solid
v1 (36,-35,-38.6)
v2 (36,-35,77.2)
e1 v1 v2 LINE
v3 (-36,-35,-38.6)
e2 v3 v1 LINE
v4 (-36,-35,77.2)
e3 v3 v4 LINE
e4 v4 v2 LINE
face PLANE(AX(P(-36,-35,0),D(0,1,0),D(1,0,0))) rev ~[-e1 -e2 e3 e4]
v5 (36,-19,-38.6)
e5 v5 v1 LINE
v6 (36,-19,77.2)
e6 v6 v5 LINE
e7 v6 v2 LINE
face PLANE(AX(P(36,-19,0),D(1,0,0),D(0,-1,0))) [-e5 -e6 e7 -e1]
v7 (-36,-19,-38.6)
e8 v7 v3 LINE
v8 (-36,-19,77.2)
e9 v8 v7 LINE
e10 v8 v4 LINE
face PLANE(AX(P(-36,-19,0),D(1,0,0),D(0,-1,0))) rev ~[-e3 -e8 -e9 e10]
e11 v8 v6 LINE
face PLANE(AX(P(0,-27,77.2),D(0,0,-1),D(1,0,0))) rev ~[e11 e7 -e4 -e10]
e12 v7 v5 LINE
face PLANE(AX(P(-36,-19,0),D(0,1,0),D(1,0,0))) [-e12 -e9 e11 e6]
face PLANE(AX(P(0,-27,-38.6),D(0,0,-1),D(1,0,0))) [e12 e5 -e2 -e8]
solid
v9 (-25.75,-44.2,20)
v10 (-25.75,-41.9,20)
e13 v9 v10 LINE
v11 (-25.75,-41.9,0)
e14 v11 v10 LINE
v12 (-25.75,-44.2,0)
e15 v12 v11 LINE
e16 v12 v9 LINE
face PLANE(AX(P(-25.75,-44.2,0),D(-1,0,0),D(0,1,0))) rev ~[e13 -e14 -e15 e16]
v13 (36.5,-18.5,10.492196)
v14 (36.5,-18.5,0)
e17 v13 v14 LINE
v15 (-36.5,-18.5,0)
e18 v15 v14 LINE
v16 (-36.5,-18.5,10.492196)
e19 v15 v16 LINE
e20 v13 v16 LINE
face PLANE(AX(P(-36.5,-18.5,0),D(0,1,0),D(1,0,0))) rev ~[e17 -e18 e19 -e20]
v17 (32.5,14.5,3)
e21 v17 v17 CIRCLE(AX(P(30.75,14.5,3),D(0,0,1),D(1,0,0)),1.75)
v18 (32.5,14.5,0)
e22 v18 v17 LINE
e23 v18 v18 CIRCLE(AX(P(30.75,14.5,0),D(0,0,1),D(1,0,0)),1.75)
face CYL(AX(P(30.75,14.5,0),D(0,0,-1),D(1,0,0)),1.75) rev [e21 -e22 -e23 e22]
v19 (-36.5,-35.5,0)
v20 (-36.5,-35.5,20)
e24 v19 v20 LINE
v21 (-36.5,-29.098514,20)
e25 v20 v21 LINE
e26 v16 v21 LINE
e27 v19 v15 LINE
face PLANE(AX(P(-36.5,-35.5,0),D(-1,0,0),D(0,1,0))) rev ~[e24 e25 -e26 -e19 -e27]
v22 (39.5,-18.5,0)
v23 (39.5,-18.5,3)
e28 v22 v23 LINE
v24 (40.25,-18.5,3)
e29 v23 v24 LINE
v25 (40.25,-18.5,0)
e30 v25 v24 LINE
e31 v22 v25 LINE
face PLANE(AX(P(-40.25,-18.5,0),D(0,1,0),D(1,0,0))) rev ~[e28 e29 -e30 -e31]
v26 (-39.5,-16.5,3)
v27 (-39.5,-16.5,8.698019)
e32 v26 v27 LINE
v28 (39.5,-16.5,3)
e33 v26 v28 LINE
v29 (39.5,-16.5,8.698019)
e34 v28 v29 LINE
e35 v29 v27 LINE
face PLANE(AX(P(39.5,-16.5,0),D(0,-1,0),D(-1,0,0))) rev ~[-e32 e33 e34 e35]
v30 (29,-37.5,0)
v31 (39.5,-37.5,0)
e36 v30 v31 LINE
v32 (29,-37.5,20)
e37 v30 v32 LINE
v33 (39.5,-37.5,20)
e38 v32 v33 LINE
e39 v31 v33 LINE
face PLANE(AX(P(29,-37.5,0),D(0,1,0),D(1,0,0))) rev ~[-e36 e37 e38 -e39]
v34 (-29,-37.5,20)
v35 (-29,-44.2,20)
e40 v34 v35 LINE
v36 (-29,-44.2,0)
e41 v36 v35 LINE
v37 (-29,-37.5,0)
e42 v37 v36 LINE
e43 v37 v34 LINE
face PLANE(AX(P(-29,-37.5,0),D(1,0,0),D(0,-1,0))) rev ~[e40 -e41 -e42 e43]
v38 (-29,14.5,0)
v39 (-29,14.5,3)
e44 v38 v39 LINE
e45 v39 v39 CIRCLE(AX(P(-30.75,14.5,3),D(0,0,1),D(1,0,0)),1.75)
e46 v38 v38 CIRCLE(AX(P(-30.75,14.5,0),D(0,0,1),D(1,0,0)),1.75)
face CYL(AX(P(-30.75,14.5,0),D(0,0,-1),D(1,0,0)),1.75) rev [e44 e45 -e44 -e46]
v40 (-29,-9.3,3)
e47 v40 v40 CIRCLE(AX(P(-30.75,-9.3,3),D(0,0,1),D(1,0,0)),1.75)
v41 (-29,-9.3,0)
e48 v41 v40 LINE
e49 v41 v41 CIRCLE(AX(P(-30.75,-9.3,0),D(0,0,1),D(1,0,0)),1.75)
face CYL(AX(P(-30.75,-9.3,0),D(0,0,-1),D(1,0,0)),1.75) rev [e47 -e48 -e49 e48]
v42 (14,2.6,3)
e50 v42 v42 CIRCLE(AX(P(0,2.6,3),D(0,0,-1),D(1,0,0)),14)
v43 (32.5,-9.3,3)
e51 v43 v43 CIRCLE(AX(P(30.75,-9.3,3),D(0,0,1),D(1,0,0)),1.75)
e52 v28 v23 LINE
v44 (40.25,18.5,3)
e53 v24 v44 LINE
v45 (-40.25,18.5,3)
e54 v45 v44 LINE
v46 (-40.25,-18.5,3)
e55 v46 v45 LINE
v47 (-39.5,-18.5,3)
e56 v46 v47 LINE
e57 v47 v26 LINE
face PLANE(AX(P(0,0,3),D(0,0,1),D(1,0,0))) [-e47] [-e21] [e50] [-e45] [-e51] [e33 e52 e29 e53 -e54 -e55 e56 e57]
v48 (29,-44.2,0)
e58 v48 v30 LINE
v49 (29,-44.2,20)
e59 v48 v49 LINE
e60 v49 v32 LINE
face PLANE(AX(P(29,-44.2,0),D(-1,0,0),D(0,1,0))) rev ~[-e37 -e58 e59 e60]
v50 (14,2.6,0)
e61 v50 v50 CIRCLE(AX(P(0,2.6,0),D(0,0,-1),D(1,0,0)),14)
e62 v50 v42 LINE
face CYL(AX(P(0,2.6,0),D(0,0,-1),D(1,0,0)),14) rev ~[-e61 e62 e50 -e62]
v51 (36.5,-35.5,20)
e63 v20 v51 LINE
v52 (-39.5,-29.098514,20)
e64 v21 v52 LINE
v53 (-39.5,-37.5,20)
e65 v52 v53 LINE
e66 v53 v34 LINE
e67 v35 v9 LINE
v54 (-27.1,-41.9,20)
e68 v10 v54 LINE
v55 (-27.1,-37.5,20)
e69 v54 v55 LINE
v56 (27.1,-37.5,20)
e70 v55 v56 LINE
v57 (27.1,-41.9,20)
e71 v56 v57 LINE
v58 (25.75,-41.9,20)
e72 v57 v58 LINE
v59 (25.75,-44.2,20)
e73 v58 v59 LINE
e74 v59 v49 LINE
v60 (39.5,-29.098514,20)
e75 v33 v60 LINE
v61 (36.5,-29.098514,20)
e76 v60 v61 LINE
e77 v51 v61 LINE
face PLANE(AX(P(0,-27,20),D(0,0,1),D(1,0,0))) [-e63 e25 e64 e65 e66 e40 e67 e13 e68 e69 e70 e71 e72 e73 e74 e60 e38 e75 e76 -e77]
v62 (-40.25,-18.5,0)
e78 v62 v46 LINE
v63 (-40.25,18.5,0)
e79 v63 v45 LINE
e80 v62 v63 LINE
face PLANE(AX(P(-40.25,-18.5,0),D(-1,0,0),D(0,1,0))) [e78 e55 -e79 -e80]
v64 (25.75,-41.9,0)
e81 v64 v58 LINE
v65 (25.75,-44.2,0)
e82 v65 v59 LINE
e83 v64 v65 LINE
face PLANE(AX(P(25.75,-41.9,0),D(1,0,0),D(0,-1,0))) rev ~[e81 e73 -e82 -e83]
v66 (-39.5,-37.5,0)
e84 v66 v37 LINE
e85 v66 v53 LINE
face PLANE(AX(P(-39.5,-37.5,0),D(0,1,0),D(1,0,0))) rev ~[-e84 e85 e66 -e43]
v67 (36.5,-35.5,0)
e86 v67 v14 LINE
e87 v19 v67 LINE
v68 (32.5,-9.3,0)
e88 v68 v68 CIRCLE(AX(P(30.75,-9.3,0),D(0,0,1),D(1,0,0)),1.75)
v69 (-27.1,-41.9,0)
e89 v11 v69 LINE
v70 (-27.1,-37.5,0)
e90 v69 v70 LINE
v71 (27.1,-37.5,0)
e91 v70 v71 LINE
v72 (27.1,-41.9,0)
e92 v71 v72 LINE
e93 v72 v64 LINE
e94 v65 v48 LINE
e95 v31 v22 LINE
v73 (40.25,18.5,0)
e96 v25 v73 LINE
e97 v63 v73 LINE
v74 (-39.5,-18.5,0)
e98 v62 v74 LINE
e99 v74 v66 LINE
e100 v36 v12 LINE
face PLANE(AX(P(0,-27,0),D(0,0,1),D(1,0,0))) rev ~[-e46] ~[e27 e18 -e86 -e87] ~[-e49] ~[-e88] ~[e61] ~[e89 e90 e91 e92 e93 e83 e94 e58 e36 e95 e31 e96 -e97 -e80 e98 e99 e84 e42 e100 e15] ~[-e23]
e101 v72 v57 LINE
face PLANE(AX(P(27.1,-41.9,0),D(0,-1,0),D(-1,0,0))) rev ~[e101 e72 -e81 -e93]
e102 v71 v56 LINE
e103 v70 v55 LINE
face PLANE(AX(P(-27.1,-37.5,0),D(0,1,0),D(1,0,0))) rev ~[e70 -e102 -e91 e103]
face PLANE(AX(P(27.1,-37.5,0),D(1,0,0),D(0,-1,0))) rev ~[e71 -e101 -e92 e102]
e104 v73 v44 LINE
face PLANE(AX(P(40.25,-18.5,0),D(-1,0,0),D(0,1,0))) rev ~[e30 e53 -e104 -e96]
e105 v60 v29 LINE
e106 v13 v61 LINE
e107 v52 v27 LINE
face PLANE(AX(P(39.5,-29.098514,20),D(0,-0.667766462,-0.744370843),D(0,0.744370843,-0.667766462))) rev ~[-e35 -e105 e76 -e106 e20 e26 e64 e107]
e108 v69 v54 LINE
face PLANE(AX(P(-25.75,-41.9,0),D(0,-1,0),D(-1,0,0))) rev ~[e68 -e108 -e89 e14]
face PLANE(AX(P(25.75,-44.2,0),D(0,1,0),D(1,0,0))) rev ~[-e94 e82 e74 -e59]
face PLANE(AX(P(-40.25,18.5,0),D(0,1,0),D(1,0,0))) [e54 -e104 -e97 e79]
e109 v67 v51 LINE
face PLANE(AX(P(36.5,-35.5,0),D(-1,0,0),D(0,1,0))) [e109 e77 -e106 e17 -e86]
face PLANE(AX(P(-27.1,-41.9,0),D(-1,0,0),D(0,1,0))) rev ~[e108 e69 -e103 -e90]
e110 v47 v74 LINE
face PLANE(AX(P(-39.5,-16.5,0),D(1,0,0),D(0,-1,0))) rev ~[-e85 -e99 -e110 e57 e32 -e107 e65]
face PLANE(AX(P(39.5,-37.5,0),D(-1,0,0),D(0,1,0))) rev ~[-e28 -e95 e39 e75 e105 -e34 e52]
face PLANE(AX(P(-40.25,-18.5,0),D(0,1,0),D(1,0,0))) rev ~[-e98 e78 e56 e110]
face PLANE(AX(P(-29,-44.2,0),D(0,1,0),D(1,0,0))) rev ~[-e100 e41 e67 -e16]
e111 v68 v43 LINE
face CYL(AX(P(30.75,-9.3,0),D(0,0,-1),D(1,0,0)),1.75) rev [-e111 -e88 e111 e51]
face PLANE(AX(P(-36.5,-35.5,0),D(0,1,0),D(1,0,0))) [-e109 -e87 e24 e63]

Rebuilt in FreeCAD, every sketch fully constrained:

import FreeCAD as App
import Part
import Sketcher

doc = App.newDocument("Part")
params = doc.addObject("Spreadsheet::Sheet", "Params")
for row, (alias, value) in enumerate([
    ("sketch1_diameter", "3.5 mm"),
    ("sketch1_height", "37 mm"),
    ("sketch1_width", "80.5 mm"),
    ("pad1_length", "3 mm"),
    ("sketch2_width", "79 mm"),
    ("sketch2_width2", "73 mm"),
    ("sketch2_height", "21 mm"),
    ("sketch2_height2", "17 mm"),
    ("sketch2_width3", "10.5 mm"),
    ("pad2_length", "20 mm"),
    ("sketch4_diameter", "28 mm"),
    ("pocket2_length", "25 mm"),
    ("sketch5_diameter", "6.3 mm"),
    ("pocket3_length", "25 mm"),
    ("sketch6_width", "72 mm"),
    ("sketch6_height", "16 mm"),
    ("pad3_length", "38.6 mm"),
    ("pad3_length2", "77.2 mm"),
], start=1):
    params.set(f"A{row}", alias)
    params.set(f"B{row}", "=" + value)
    params.setAlias(f"B{row}", alias)

body = doc.addObject("PartDesign::Body", "Body")

# Sketch on XY plane
sketch1 = body.newObject("Sketcher::SketchObject", "Sketch")
sketch1.AttachmentSupport = (doc.getObject("XY_Plane"), [""])
sketch1.MapMode = "FlatFace"
sketch1.addGeometry([
    Part.LineSegment(App.Vector(-40.2, 18.5, 0), App.Vector(-40.2, -18.5, 0)),  # 0
    Part.LineSegment(App.Vector(-40.2, -18.5, 0), App.Vector(40.2, -18.5, 0)),  # 1
    Part.LineSegment(App.Vector(40.2, -18.5, 0), App.Vector(40.2, 18.5, 0)),  # 2
    Part.LineSegment(App.Vector(40.2, 18.5, 0), App.Vector(-40.2, 18.5, 0)),  # 3
    Part.Circle(App.Vector(-30.8, -9.3, 0), App.Vector(0, 0, 1), 1.8),  # 4
    Part.Circle(App.Vector(30.8, -9.3, 0), App.Vector(0, 0, 1), 1.8),  # 5
    Part.Circle(App.Vector(-30.8, 14.5, 0), App.Vector(0, 0, 1), 1.8),  # 6
    Part.Circle(App.Vector(30.8, 14.5, 0), App.Vector(0, 0, 1), 1.8),  # 7
], False)
sketch1.addConstraint([
    Sketcher.Constraint("Coincident", 0, 2, 1, 1),
    Sketcher.Constraint("Coincident", 1, 2, 2, 1),
    Sketcher.Constraint("Coincident", 2, 2, 3, 1),
    Sketcher.Constraint("Coincident", 3, 2, 0, 1),
    Sketcher.Constraint("Vertical", 0),
    Sketcher.Constraint("Horizontal", 1),
    Sketcher.Constraint("Vertical", 2),
    Sketcher.Constraint("Horizontal", 3),
    Sketcher.Constraint("Equal", 4, 5),
    Sketcher.Constraint("Equal", 5, 6),
    Sketcher.Constraint("Equal", 6, 7),
    Sketcher.Constraint("Symmetric", 0, 2, 2, 2, -1, 1),
    Sketcher.Constraint("Symmetric", 4, 3, 5, 3, -2),
    Sketcher.Constraint("Symmetric", 6, 3, 7, 3, -2),
    Sketcher.Constraint("Vertical", 4, 3, 6, 3),
    Sketcher.Constraint("Diameter", 4, 3.5),
    Sketcher.Constraint("DistanceY", 0, 2, 0, 1, 37.0),
    Sketcher.Constraint("DistanceX", 1, 1, 1, 2, 80.5),
    Sketcher.Constraint("DistanceY", 0, 2, 6, 3, 33.0),
    Sketcher.Constraint("DistanceX", 0, 2, 5, 3, 71.0),
    Sketcher.Constraint("DistanceY", 4, 3, -1, 1, 9.3),
])
sketch1.setExpression("Constraints[15]", "Params.sketch1_diameter")
sketch1.setExpression("Constraints[16]", "Params.sketch1_height")
sketch1.setExpression("Constraints[17]", "Params.sketch1_width")
pad1 = body.newObject("PartDesign::Pad", "Pad")
pad1.Profile = sketch1
pad1.setExpression("Length", "Params.pad1_length")

# Sketch on XY plane
sketch2 = body.newObject("Sketcher::SketchObject", "Sketch001")
sketch2.AttachmentSupport = (doc.getObject("XY_Plane"), [""])
sketch2.MapMode = "FlatFace"
sketch2.addGeometry([
    Part.LineSegment(App.Vector(39.5, -37.5, 0), App.Vector(39.5, -16.5, 0)),  # 0
    Part.LineSegment(App.Vector(39.5, -16.5, 0), App.Vector(-39.5, -16.5, 0)),  # 1
    Part.LineSegment(App.Vector(-39.5, -16.5, 0), App.Vector(-39.5, -37.5, 0)),  # 2
    Part.LineSegment(App.Vector(-39.5, -37.5, 0), App.Vector(-29, -37.5, 0)),  # 3
    Part.LineSegment(App.Vector(-29, -37.5, 0), App.Vector(-29, -44.2, 0)),  # 4
    Part.LineSegment(App.Vector(-29, -44.2, 0), App.Vector(-25.8, -44.2, 0)),  # 5
    Part.LineSegment(App.Vector(-25.8, -44.2, 0), App.Vector(-25.8, -41.9, 0)),  # 6
    Part.LineSegment(App.Vector(-25.8, -41.9, 0), App.Vector(-27.1, -41.9, 0)),  # 7
    Part.LineSegment(App.Vector(-27.1, -41.9, 0), App.Vector(-27.1, -37.5, 0)),  # 8
    Part.LineSegment(App.Vector(-27.1, -37.5, 0), App.Vector(27.1, -37.5, 0)),  # 9
    Part.LineSegment(App.Vector(27.1, -37.5, 0), App.Vector(27.1, -41.9, 0)),  # 10
    Part.LineSegment(App.Vector(27.1, -41.9, 0), App.Vector(25.8, -41.9, 0)),  # 11
    Part.LineSegment(App.Vector(25.8, -41.9, 0), App.Vector(25.8, -44.2, 0)),  # 12
    Part.LineSegment(App.Vector(25.8, -44.2, 0), App.Vector(29, -44.2, 0)),  # 13
    Part.LineSegment(App.Vector(29, -44.2, 0), App.Vector(29, -37.5, 0)),  # 14
    Part.LineSegment(App.Vector(29, -37.5, 0), App.Vector(39.5, -37.5, 0)),  # 15
    Part.LineSegment(App.Vector(36.5, -35.5, 0), App.Vector(-36.5, -35.5, 0)),  # 16
    Part.LineSegment(App.Vector(-36.5, -35.5, 0), App.Vector(-36.5, -18.5, 0)),  # 17
    Part.LineSegment(App.Vector(-36.5, -18.5, 0), App.Vector(36.5, -18.5, 0)),  # 18
    Part.LineSegment(App.Vector(36.5, -18.5, 0), App.Vector(36.5, -35.5, 0)),  # 19
], False)
sketch2.addConstraint([
    Sketcher.Constraint("Coincident", 0, 2, 1, 1),
    Sketcher.Constraint("Coincident", 1, 2, 2, 1),
    Sketcher.Constraint("Coincident", 2, 2, 3, 1),
    Sketcher.Constraint("Coincident", 3, 2, 4, 1),
    Sketcher.Constraint("Coincident", 4, 2, 5, 1),
    Sketcher.Constraint("Coincident", 5, 2, 6, 1),
    Sketcher.Constraint("Coincident", 6, 2, 7, 1),
    Sketcher.Constraint("Coincident", 7, 2, 8, 1),
    Sketcher.Constraint("Coincident", 8, 2, 9, 1),
    Sketcher.Constraint("Coincident", 9, 2, 10, 1),
    Sketcher.Constraint("Coincident", 10, 2, 11, 1),
    Sketcher.Constraint("Coincident", 11, 2, 12, 1),
    Sketcher.Constraint("Coincident", 12, 2, 13, 1),
    Sketcher.Constraint("Coincident", 13, 2, 14, 1),
    Sketcher.Constraint("Coincident", 14, 2, 15, 1),
    Sketcher.Constraint("Coincident", 15, 2, 0, 1),
    Sketcher.Constraint("Coincident", 16, 2, 17, 1),
    Sketcher.Constraint("Coincident", 17, 2, 18, 1),
    Sketcher.Constraint("Coincident", 18, 2, 19, 1),
    Sketcher.Constraint("Coincident", 19, 2, 16, 1),
    Sketcher.Constraint("Vertical", 0),
    Sketcher.Constraint("Horizontal", 1),
    Sketcher.Constraint("Vertical", 2),
    Sketcher.Constraint("Horizontal", 3),
    Sketcher.Constraint("Vertical", 4),
    Sketcher.Constraint("Horizontal", 5),
    Sketcher.Constraint("Vertical", 6),
    Sketcher.Constraint("Horizontal", 7),
    Sketcher.Constraint("Vertical", 8),
    Sketcher.Constraint("Horizontal", 9),
    Sketcher.Constraint("Vertical", 10),
    Sketcher.Constraint("Horizontal", 11),
    Sketcher.Constraint("Vertical", 12),
    Sketcher.Constraint("Horizontal", 13),
    Sketcher.Constraint("Vertical", 14),
    Sketcher.Constraint("Horizontal", 15),
    Sketcher.Constraint("Horizontal", 16),
    Sketcher.Constraint("Vertical", 17),
    Sketcher.Constraint("Horizontal", 18),
    Sketcher.Constraint("Vertical", 19),
    Sketcher.Constraint("Symmetric", 7, 2, 10, 2, -2),
    Sketcher.Constraint("Symmetric", 5, 2, 12, 2, -2),
    Sketcher.Constraint("Symmetric", 3, 2, 14, 2, -2),
    Sketcher.Constraint("Horizontal", 3, 2, 8, 2),
    Sketcher.Constraint("Equal", 3, 15),
    Sketcher.Constraint("DistanceX", 1, 2, 1, 1, 79.0),
    Sketcher.Constraint("DistanceX", 16, 2, 16, 1, 73.0),
    Sketcher.Constraint("DistanceY", 0, 1, 0, 2, 21.0),
    Sketcher.Constraint("DistanceY", 17, 1, 17, 2, 17.0),
    Sketcher.Constraint("DistanceX", 3, 1, 3, 2, 10.5),
    Sketcher.Constraint("DistanceX", 9, 1, 9, 2, 54.2),
    Sketcher.Constraint("DistanceY", 4, 2, 4, 1, 6.7),
    Sketcher.Constraint("DistanceY", 6, 1, 6, 2, 2.3),
    Sketcher.Constraint("DistanceX", 2, 2, 16, 2, 3.0),
    Sketcher.Constraint("DistanceY", 2, 2, 16, 2, 2.0),
    Sketcher.Constraint("DistanceX", 5, 1, 5, 2, 3.25),
    Sketcher.Constraint("DistanceY", 0, 2, -1, 1, 16.5),
])
sketch2.setExpression("Constraints[45]", "Params.sketch2_width")
sketch2.setExpression("Constraints[46]", "Params.sketch2_width2")
sketch2.setExpression("Constraints[47]", "Params.sketch2_height")
sketch2.setExpression("Constraints[48]", "Params.sketch2_height2")
sketch2.setExpression("Constraints[49]", "Params.sketch2_width3")
pad2 = body.newObject("PartDesign::Pad", "Pad001")
pad2.Profile = sketch2
pad2.setExpression("Length", "Params.pad2_length")

# Sketch on YZ plane
sketch3 = body.newObject("Sketcher::SketchObject", "Sketch002")
sketch3.AttachmentSupport = (doc.getObject("YZ_Plane"), [""])
sketch3.MapMode = "FlatFace"
sketch3.AttachmentOffset = App.Placement(App.Vector(0, 0, 39.5), App.Rotation())
sketch3.addGeometry([
    Part.LineSegment(App.Vector(-16, 9, 0), App.Vector(-16, 20, 0)),
    Part.LineSegment(App.Vector(-16, 20, 0), App.Vector(-29, 20, 0)),
    Part.LineSegment(App.Vector(-29, 20, 0), App.Vector(-16, 9, 0)),
], False)
sketch3.addConstraint([
    Sketcher.Constraint("Coincident", 0, 2, 1, 1),
    Sketcher.Constraint("Coincident", 1, 2, 2, 1),
    Sketcher.Constraint("Coincident", 2, 2, 0, 1),
    Sketcher.Constraint("Vertical", 0),
    Sketcher.Constraint("Horizontal", 1),
    Sketcher.Constraint("DistanceY", -1, 1, 0, 2, 20.0),
    Sketcher.Constraint("DistanceX", 0, 2, -1, 1, 16.5),
    Sketcher.Constraint("DistanceY", 0, 1, 0, 2, 11.301981),
    Sketcher.Constraint("Distance", 2, 16.92505),
])
pocket1 = body.newObject("PartDesign::Pocket", "Pocket")
pocket1.Profile = sketch3
pocket1.Type = "ThroughAll"

# Sketch on XY plane
sketch4 = body.newObject("Sketcher::SketchObject", "Sketch003")
sketch4.AttachmentSupport = (doc.getObject("XY_Plane"), [""])
sketch4.MapMode = "FlatFace"
sketch4.addGeometry(Part.Circle(App.Vector(0, 3, 0), App.Vector(0, 0, 1), 14), False)
sketch4.addConstraint([
    Sketcher.Constraint("PointOnObject", 0, 3, -2),
    Sketcher.Constraint("Diameter", 0, 28.0),
    Sketcher.Constraint("DistanceY", -1, 1, 0, 3, 2.6),
])
sketch4.setExpression("Constraints[1]", "Params.sketch4_diameter")
pocket2 = body.newObject("PartDesign::Pocket", "Pocket001")
pocket2.Profile = sketch4
pocket2.setExpression("Length", "Params.pocket2_length")
pocket2.Reversed = True

# Sketch on XY plane
sketch5 = body.newObject("Sketcher::SketchObject", "Sketch004")
sketch5.AttachmentSupport = (doc.getObject("XY_Plane"), [""])
sketch5.MapMode = "FlatFace"
sketch5.AttachmentOffset = App.Placement(App.Vector(0, 0, 3), App.Rotation())
sketch5.addGeometry([
    Part.Circle(App.Vector(30.8, -9.3, 0), App.Vector(0, 0, 1), 3.1),
    Part.Circle(App.Vector(-30.8, -9.3, 0), App.Vector(0, 0, 1), 3.1),
], False)
sketch5.addConstraint([
    Sketcher.Constraint("Equal", 0, 1),
    Sketcher.Constraint("Symmetric", 0, 3, 1, 3, -2),
    Sketcher.Constraint("Diameter", 0, 6.3),
    Sketcher.Constraint("DistanceY", 0, 3, -1, 1, 9.3),
    Sketcher.Constraint("DistanceX", 1, 3, 0, 3, 61.5),
])
sketch5.setExpression("Constraints[2]", "Params.sketch5_diameter")
pocket3 = body.newObject("PartDesign::Pocket", "Pocket002")
pocket3.Profile = sketch5
pocket3.setExpression("Length", "Params.pocket3_length")
pocket3.Reversed = True
body2 = doc.addObject("PartDesign::Body", "Body001")

# Sketch on XY plane
sketch6 = body2.newObject("Sketcher::SketchObject", "Sketch005")
sketch6.AttachmentSupport = (doc.getObject("XY_Plane001"), [""])
sketch6.MapMode = "FlatFace"
sketch6.addGeometry([
    Part.LineSegment(App.Vector(-36, -35, 0), App.Vector(-36, -19, 0)),
    Part.LineSegment(App.Vector(-36, -19, 0), App.Vector(36, -19, 0)),
    Part.LineSegment(App.Vector(36, -19, 0), App.Vector(36, -35, 0)),
    Part.LineSegment(App.Vector(36, -35, 0), App.Vector(-36, -35, 0)),
], False)
sketch6.addConstraint([
    Sketcher.Constraint("Coincident", 0, 2, 1, 1),
    Sketcher.Constraint("Coincident", 1, 2, 2, 1),
    Sketcher.Constraint("Coincident", 2, 2, 3, 1),
    Sketcher.Constraint("Coincident", 3, 2, 0, 1),
    Sketcher.Constraint("Vertical", 0),
    Sketcher.Constraint("Horizontal", 1),
    Sketcher.Constraint("Vertical", 2),
    Sketcher.Constraint("Horizontal", 3),
    Sketcher.Constraint("DistanceX", 1, 1, 1, 2, 72.0),
    Sketcher.Constraint("DistanceY", 0, 1, 0, 2, 16.0),
    Sketcher.Constraint("DistanceX", 0, 2, -1, 1, 36.0),
    Sketcher.Constraint("DistanceY", 0, 2, -1, 1, 19.0),
])
sketch6.setExpression("Constraints[8]", "Params.sketch6_width")
sketch6.setExpression("Constraints[9]", "Params.sketch6_height")
pad3 = body2.newObject("PartDesign::Pad", "Pad002")
pad3.Profile = sketch6
pad3.Type = "TwoLengths"
pad3.setExpression("Length", "Params.pad3_length")
pad3.setExpression("Length2", "Params.pad3_length2")
pad3.Reversed = True

doc.recompute()
